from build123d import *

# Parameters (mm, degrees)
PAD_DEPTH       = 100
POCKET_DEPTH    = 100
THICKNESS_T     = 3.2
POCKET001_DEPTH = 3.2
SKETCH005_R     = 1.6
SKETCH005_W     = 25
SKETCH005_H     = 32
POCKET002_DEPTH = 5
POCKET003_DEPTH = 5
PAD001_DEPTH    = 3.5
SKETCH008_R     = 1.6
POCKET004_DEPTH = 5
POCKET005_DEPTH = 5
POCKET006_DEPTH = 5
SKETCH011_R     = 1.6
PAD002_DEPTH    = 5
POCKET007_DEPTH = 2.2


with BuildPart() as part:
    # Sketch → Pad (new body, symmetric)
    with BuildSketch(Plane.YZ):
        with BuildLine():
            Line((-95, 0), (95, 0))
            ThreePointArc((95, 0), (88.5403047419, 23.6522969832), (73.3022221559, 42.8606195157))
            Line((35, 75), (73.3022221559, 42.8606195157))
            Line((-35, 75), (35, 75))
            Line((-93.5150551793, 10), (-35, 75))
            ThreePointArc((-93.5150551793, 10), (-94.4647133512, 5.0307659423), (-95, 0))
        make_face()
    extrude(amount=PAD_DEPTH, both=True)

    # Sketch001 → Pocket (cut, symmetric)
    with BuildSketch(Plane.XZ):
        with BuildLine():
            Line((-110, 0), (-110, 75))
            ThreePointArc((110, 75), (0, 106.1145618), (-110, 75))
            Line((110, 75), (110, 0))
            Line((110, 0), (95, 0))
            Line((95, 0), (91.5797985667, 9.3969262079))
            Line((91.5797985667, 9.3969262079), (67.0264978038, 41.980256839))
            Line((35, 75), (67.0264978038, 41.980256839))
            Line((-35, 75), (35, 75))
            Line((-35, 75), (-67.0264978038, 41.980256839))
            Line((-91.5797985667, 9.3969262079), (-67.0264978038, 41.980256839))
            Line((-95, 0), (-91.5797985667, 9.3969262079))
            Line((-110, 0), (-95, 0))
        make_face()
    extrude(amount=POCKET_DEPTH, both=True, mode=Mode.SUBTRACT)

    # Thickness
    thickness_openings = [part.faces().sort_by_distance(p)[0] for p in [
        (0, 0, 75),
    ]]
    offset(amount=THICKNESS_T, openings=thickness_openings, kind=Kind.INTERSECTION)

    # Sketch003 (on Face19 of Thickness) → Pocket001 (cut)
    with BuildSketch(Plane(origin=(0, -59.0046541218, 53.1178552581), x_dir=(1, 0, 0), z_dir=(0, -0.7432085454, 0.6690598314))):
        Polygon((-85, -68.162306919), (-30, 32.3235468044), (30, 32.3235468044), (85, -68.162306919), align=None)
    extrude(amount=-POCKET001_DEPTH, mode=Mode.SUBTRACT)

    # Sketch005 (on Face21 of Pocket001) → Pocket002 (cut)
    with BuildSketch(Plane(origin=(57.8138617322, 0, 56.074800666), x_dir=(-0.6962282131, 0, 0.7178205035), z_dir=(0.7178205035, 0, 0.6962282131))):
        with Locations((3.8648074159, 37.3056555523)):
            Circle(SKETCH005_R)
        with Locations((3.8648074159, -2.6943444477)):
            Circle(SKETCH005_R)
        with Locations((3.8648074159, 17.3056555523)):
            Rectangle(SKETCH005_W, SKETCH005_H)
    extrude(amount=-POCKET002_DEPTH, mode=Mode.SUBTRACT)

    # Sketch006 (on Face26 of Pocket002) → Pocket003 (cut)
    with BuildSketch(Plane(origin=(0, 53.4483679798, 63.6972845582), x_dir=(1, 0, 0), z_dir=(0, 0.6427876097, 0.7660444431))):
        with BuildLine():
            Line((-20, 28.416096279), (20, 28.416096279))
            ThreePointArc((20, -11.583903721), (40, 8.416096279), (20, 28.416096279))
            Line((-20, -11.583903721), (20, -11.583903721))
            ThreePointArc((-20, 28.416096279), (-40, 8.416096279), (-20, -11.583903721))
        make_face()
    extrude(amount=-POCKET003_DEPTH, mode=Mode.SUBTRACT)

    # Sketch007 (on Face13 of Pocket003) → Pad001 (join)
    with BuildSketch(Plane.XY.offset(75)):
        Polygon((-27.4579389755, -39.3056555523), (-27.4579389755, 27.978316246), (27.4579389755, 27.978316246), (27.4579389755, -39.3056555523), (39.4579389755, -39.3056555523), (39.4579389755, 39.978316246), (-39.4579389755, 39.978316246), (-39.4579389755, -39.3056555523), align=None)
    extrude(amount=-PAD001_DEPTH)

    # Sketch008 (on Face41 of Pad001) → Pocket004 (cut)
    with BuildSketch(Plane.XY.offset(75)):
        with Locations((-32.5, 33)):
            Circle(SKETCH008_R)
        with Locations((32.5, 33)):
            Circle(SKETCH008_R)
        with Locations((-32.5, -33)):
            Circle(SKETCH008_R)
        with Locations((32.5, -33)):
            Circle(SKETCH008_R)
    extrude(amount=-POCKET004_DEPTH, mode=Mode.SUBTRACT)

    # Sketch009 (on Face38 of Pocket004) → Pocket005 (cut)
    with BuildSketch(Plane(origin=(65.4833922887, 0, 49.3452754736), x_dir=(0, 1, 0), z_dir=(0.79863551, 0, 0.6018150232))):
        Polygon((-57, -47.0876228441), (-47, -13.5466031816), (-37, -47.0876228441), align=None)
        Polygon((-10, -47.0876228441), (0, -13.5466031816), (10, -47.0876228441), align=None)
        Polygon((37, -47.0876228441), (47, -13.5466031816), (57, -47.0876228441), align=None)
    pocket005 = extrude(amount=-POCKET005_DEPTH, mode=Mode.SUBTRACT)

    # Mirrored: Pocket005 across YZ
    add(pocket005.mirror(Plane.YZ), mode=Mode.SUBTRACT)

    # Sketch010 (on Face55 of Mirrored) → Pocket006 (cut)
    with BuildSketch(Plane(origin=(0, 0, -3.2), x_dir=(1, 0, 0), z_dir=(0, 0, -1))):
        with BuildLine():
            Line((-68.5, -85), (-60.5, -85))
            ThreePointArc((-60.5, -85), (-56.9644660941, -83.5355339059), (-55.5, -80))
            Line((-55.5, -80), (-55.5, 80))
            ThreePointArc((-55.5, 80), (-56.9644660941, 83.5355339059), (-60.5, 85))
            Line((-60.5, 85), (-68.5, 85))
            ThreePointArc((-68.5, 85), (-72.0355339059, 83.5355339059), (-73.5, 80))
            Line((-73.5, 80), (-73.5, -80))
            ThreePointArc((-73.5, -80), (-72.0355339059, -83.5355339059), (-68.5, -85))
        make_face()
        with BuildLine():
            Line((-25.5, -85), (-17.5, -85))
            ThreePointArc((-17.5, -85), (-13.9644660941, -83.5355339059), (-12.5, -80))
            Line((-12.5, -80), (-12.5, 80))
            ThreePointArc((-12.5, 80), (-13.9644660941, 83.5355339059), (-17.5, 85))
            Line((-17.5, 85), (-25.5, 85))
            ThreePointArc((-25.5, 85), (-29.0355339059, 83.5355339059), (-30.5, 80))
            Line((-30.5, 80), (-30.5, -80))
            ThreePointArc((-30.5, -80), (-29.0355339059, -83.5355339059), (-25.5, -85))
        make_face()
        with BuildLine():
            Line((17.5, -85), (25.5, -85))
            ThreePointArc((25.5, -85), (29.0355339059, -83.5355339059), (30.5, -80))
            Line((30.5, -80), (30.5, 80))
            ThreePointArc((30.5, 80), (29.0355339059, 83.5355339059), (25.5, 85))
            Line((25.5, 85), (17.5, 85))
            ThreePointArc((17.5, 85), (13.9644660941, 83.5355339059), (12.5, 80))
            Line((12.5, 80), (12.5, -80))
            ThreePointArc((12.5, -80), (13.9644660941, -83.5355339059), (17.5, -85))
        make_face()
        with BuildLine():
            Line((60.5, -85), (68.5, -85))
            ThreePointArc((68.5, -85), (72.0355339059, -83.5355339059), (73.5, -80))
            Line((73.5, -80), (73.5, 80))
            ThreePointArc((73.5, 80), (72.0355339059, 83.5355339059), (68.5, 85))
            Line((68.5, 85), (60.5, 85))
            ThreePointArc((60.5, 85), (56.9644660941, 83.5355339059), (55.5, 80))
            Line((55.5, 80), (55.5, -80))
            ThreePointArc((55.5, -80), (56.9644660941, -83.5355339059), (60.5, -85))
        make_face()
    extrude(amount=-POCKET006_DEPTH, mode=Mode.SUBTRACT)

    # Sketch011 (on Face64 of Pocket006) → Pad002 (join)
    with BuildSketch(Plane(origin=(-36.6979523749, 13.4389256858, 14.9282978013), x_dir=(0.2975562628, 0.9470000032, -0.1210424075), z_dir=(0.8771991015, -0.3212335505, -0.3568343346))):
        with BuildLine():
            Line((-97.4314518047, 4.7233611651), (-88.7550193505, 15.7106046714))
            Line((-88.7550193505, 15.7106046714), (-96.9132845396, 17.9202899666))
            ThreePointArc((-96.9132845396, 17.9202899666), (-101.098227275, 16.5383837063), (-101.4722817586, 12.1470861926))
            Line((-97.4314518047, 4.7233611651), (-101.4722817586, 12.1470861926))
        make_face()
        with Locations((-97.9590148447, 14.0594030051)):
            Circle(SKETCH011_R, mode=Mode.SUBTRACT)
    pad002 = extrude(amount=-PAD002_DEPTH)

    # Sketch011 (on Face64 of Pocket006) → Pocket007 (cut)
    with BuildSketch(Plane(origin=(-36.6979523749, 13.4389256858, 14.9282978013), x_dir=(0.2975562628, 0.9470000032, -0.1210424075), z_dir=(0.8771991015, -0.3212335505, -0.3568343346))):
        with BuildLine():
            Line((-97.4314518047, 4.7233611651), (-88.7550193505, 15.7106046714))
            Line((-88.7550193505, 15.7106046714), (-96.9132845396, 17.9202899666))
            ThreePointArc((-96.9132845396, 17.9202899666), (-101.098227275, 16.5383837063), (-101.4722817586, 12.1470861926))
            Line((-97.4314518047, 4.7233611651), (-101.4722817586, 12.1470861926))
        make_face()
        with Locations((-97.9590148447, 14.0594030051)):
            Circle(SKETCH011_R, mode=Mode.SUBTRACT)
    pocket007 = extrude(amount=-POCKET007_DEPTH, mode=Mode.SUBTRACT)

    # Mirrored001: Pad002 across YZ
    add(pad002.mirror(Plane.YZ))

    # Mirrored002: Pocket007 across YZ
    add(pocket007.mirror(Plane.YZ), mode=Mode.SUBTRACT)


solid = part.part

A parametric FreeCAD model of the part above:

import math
import FreeCAD as App
import Part
import Sketcher

V = App.Vector
Q = App.Units.Quantity


def faces_at(feature, points):
    """Names of the faces that lie closest to the given points."""
    faces = feature.Shape.Faces
    near = lambda p: min(range(len(faces)), key=lambda i: faces[i].distToShape(Part.Vertex(*p))[0])
    return sorted({f"Face{near(p) + 1}" for p in points})


def add_polygon(sketch, points):
    """Adds a closed chain of lines whose ends are joined by coincident constraints."""
    first, n = sketch.GeometryCount, len(points)
    for a, b in zip(points, points[1:] + points[:1]):
        sketch.addGeometry(Part.LineSegment(App.Vector(*a, 0), App.Vector(*b, 0)), False)
    for i in range(n):
        sketch.addConstraint(Sketcher.Constraint("Coincident", first + i, 2, first + (i + 1) % n, 1))

doc = App.newDocument("Part")
params = doc.addObject("Spreadsheet::Sheet", "Params")
for row, (alias, value) in enumerate([
    ("sketch1_width", "190 mm"),
    ("sketch1_width2", "70 mm"),
    ("sketch1_length", "50 mm"),
    ("pad1_length", "200 mm"),
    ("sketch2_radius", "210 mm"),
    ("sketch2_width", "15 mm"),
    ("sketch2_width2", "70 mm"),
    ("sketch2_height", "75 mm"),
    ("sketch2_length", "10 mm"),
    ("pocket1_length", "200 mm"),
    ("thickness_wall", "3.2 mm"),
    ("sketch3_width", "170 mm"),
    ("sketch3_width2", "60 mm"),
    ("pocket2_length", "3.2 mm"),
    ("sketch4_diameter", "3.2 mm"),
    ("sketch4_width", "25 mm"),
    ("sketch4_height", "32 mm"),
    ("pocket3_length", "5 mm"),
    ("sketch5_radius", "20 mm"),
    ("sketch5_width", "40 mm"),
    ("pocket4_length", "5 mm"),
    ("sketch6_width", "12 mm"),
    ("pad2_length", "3.5 mm"),
    ("sketch7_diameter", "3.2 mm"),
    ("pocket5_length", "5 mm"),
    ("sketch8_width", "20 mm"),
    ("sketch8_length", "35 mm"),
    ("pocket6_length", "5 mm"),
    ("sketch9_radius", "5 mm"),
    ("sketch9_width", "8 mm"),
    ("sketch9_height", "160 mm"),
    ("pocket7_length", "5 mm"),
    ("sketch10_radius", "4 mm"),
    ("sketch10_diameter", "3.2 mm"),
    ("sketch10_length", "14 mm"),
    ("pad3_length", "5 mm"),
    ("sketch11_radius", "4 mm"),
    ("sketch11_diameter", "3.2 mm"),
    ("sketch11_length", "14 mm"),
    ("pocket8_length", "2.2 mm"),
], start=1):
    params.set(f"A{row}", alias)
    params.set(f"B{row}", "=" + value)
    params.setAlias(f"B{row}", alias)

body = doc.addObject("PartDesign::Body", "Body")

# Sketch on YZ plane
sketch1 = body.newObject("Sketcher::SketchObject", "Sketch")
sketch1.AttachmentSupport = (doc.getObject("YZ_Plane"), [""])
sketch1.MapMode = "FlatFace"
sketch1.addGeometry(Part.LineSegment(V(-95, 0, 0), V(95, 0, 0)), False)
sketch1.addGeometry(Part.ArcOfCircle(Part.Circle(V(34, -4, 0), V(0, 0, 1), 61), math.radians(4), math.radians(50)), False)
sketch1.addGeometry(Part.LineSegment(V(73, 43, 0), V(35, 75, 0)), False)
sketch1.addGeometry(Part.LineSegment(V(35, 75, 0), V(-35, 75, 0)), False)
sketch1.addGeometry(Part.LineSegment(V(-35, 75, 0), V(-94, 10, 0)), False)
sketch1.addGeometry(Part.ArcOfCircle(Part.Circle(V(-34, -4, 0), V(0, 0, 1), 61), math.radians(166.81), math.radians(176.3)), False)
sketch1.addConstraint(Sketcher.Constraint("Coincident", 0, 2, 1, 1))
sketch1.addConstraint(Sketcher.Constraint("Tangent", 1, 2, 2, 1))
sketch1.addConstraint(Sketcher.Constraint("Coincident", 2, 2, 3, 1))
sketch1.addConstraint(Sketcher.Constraint("Coincident", 3, 2, 4, 1))
sketch1.addConstraint(Sketcher.Constraint("Coincident", 4, 2, 5, 1))
sketch1.addConstraint(Sketcher.Constraint("Coincident", 5, 2, 0, 1))
sketch1.addConstraint(Sketcher.Constraint("Horizontal", 0))
sketch1.addConstraint(Sketcher.Constraint("Horizontal", 3))
sketch1.addConstraint(Sketcher.Constraint("Equal", 1, 5))
sketch1.addConstraint(Sketcher.Constraint("Symmetric", 0, 2, 5, 2, -1, 1))
sketch1.addConstraint(Sketcher.Constraint("Horizontal", 1, 3, 5, 3))
sketch1.addConstraint(Sketcher.Constraint("DistanceX", 0, 1, 0, 2, Q("190 mm")))
sketch1.addConstraint(Sketcher.Constraint("DistanceX", 3, 2, 3, 1, Q("70 mm")))
sketch1.addConstraint(Sketcher.Constraint("Angle", 2, Q("140 deg")))
sketch1.addConstraint(Sketcher.Constraint("Distance", 2, Q("50 mm")))
sketch1.addConstraint(Sketcher.Constraint("DistanceX", -1, 1, 2, 2, Q("35 mm")))
sketch1.addConstraint(Sketcher.Constraint("DistanceY", -1, 1, 2, 2, Q("75 mm")))
sketch1.addConstraint(Sketcher.Constraint("DistanceY", -1, 1, 4, 2, Q("10 mm")))
sketch1.setExpression("Constraints[11]", "Params.sketch1_width")
sketch1.setExpression("Constraints[12]", "Params.sketch1_width2")
sketch1.setExpression("Constraints[14]", "Params.sketch1_length")
pad1 = body.newObject("PartDesign::Pad", "Pad")
pad1.Profile = sketch1
pad1.setExpression("Length", "Params.pad1_length")
pad1.Midplane = True

# Sketch on XZ plane
sketch2 = body.newObject("Sketcher::SketchObject", "Sketch001")
sketch2.AttachmentSupport = (doc.getObject("XZ_Plane"), [""])
sketch2.MapMode = "FlatFace"
sketch2.addGeometry(Part.LineSegment(V(-110, 75, 0), V(-110, 0, 0)), False)
sketch2.addGeometry(Part.LineSegment(V(-110, 0, 0), V(-95, 0, 0)), False)
sketch2.addGeometry(Part.LineSegment(V(-95, 0, 0), V(-92, 9, 0)), False)
sketch2.addGeometry(Part.LineSegment(V(-92, 9, 0), V(-67, 42, 0)), False)
sketch2.addGeometry(Part.LineSegment(V(-67, 42, 0), V(-35, 75, 0)), False)
sketch2.addGeometry(Part.LineSegment(V(-35, 75, 0), V(35, 75, 0)), False)
sketch2.addGeometry(Part.LineSegment(V(35, 75, 0), V(67, 42, 0)), False)
sketch2.addGeometry(Part.LineSegment(V(67, 42, 0), V(92, 9, 0)), False)
sketch2.addGeometry(Part.LineSegment(V(92, 9, 0), V(95, 0, 0)), False)
sketch2.addGeometry(Part.LineSegment(V(95, 0, 0), V(110, 0, 0)), False)
sketch2.addGeometry(Part.LineSegment(V(110, 0, 0), V(110, 75, 0)), False)
sketch2.addGeometry(Part.ArcOfCircle(Part.Circle(V(0, -104, 0), V(0, 0, 1), 210), math.radians(58), math.radians(122)), False)
sketch2.addConstraint(Sketcher.Constraint("Coincident", 0, 2, 1, 1))
sketch2.addConstraint(Sketcher.Constraint("Coincident", 1, 2, 2, 1))
sketch2.addConstraint(Sketcher.Constraint("Coincident", 2, 2, 3, 1))
sketch2.addConstraint(Sketcher.Constraint("Coincident", 3, 2, 4, 1))
sketch2.addConstraint(Sketcher.Constraint("Coincident", 4, 2, 5, 1))
sketch2.addConstraint(Sketcher.Constraint("Coincident", 5, 2, 6, 1))
sketch2.addConstraint(Sketcher.Constraint("Coincident", 6, 2, 7, 1))
sketch2.addConstraint(Sketcher.Constraint("Coincident", 7, 2, 8, 1))
sketch2.addConstraint(Sketcher.Constraint("Coincident", 8, 2, 9, 1))
sketch2.addConstraint(Sketcher.Constraint("Coincident", 9, 2, 10, 1))
sketch2.addConstraint(Sketcher.Constraint("Coincident", 10, 2, 11, 1))
sketch2.addConstraint(Sketcher.Constraint("Coincident", 11, 2, 0, 1))
sketch2.addConstraint(Sketcher.Constraint("Vertical", 0))
sketch2.addConstraint(Sketcher.Constraint("Horizontal", 1))
sketch2.addConstraint(Sketcher.Constraint("Horizontal", 5))
sketch2.addConstraint(Sketcher.Constraint("Horizontal", 9))
sketch2.addConstraint(Sketcher.Constraint("Vertical", 10))
sketch2.addConstraint(Sketcher.Constraint("Symmetric", 1, 2, 8, 2, -1, 1))
sketch2.addConstraint(Sketcher.Constraint("Symmetric", 3, 2, 6, 2, -2))
sketch2.addConstraint(Sketcher.Constraint("Symmetric", 2, 2, 7, 2, -2))
sketch2.addConstraint(Sketcher.Constraint("Symmetric", 0, 2, 9, 2, -2))
sketch2.addConstraint(Sketcher.Constraint("PointOnObject", 11, 3, -2))
sketch2.addConstraint(Sketcher.Constraint("Horizontal", 5, 2, 10, 2))
sketch2.addConstraint(Sketcher.Constraint("Equal", 4, 6))
sketch2.addConstraint(Sketcher.Constraint("Radius", 11, Q("210 mm")))
sketch2.addConstraint(Sketcher.Constraint("DistanceX", 1, 1, 1, 2, Q("15 mm")))
sketch2.addConstraint(Sketcher.Constraint("DistanceX", 5, 1, 5, 2, Q("70 mm")))
sketch2.addConstraint(Sketcher.Constraint("DistanceY", 0, 2, 0, 1, Q("75 mm")))
sketch2.addConstraint(Sketcher.Constraint("Angle", 2, Q("70 deg")))
sketch2.addConstraint(Sketcher.Constraint("Angle", 3, Q("53 deg")))
sketch2.addConstraint(Sketcher.Constraint("Distance", 2, Q("10 mm")))
sketch2.addConstraint(Sketcher.Constraint("Distance", 4, Q("46 mm")))
sketch2.addConstraint(Sketcher.Constraint("DistanceX", 0, 2, -1, 1, Q("110 mm")))
sketch2.setExpression("Constraints[24]", "Params.sketch2_radius")
sketch2.setExpression("Constraints[25]", "Params.sketch2_width")
sketch2.setExpression("Constraints[26]", "Params.sketch2_width2")
sketch2.setExpression("Constraints[27]", "Params.sketch2_height")
sketch2.setExpression("Constraints[30]", "Params.sketch2_length")
pocket1 = body.newObject("PartDesign::Pocket", "Pocket")
pocket1.Profile = sketch2
pocket1.setExpression("Length", "Params.pocket1_length")
pocket1.Midplane = True
doc.recompute()

thickness = body.newObject("PartDesign::Thickness", "Thickness")
thickness.Base = (pocket1, faces_at(pocket1, [(0, 0, 75)]))
thickness.setExpression("Value", "Params.thickness_wall")
thickness.Reversed = False
thickness.Join = "Intersection"

# Sketch on an angled plane
sketch3 = body.newObject("Sketcher::SketchObject", "Sketch002")
sketch3.Placement = App.Placement(V(0, -59.004654, 53.117855), App.Rotation(V(1, 0, 0), V(0, 0.669059831, 0.743208545), V(0, -0.743208545, 0.669059831), "ZXY"))
add_polygon(sketch3, [(-30, 32), (-85, -68), (85, -68), (30, 32)])  # lines 0-3
sketch3.addConstraint(Sketcher.Constraint("Horizontal", 1))
sketch3.addConstraint(Sketcher.Constraint("Horizontal", 3))
sketch3.addConstraint(Sketcher.Constraint("Equal", 0, 2))
sketch3.addConstraint(Sketcher.Constraint("DistanceX", 1, 1, 1, 2, Q("170 mm")))
sketch3.addConstraint(Sketcher.Constraint("DistanceX", 3, 2, 3, 1, Q("60 mm")))
sketch3.addConstraint(Sketcher.Constraint("DistanceX", 0, 2, -1, 1, Q("85 mm")))
sketch3.addConstraint(Sketcher.Constraint("Distance", 0, Q("114.553074 mm")))
sketch3.addConstraint(Sketcher.Constraint("DistanceY", 0, 2, -1, 1, Q("68.162307 mm")))
sketch3.setExpression("Constraints[7]", "Params.sketch3_width")
sketch3.setExpression("Constraints[8]", "Params.sketch3_width2")
pocket2 = body.newObject("PartDesign::Pocket", "Pocket001")
pocket2.Profile = sketch3
pocket2.setExpression("Length", "Params.pocket2_length")

# Sketch on an angled plane
sketch4 = body.newObject("Sketcher::SketchObject", "Sketch003")
sketch4.Placement = App.Placement(V(57.813862, 0, 56.074801), App.Rotation(V(-0.696228213, 0, 0.717820504), V(0, -1.000000001, 0), V(0.717820504, 0, 0.696228213), "ZXY"))
sketch4.addGeometry(Part.Circle(V(3.9, 37.3, 0), V(0, 0, 1), 1.6), False)  # 0
sketch4.addGeometry(Part.Circle(V(3.9, -2.7, 0), V(0, 0, 1), 1.6), False)  # 1
add_polygon(sketch4, [(-8.6, 33.3), (-8.6, 1.3), (16.4, 1.3), (16.4, 33.3)])  # lines 2-5
sketch4.addConstraint(Sketcher.Constraint("Vertical", 2))
sketch4.addConstraint(Sketcher.Constraint("Horizontal", 3))
sketch4.addConstraint(Sketcher.Constraint("Vertical", 4))
sketch4.addConstraint(Sketcher.Constraint("Horizontal", 5))
sketch4.addConstraint(Sketcher.Constraint("Equal", 0, 1))
sketch4.addConstraint(Sketcher.Constraint("Vertical", 0, 3, 1, 3))
sketch4.addConstraint(Sketcher.Constraint("Diameter", 0, Q("3.2 mm")))
sketch4.addConstraint(Sketcher.Constraint("DistanceX", 3, 1, 3, 2, Q("25 mm")))
sketch4.addConstraint(Sketcher.Constraint("DistanceY", 2, 2, 2, 1, Q("32 mm")))
sketch4.addConstraint(Sketcher.Constraint("DistanceY", 1, 3, 0, 3, Q("40 mm")))
sketch4.addConstraint(Sketcher.Constraint("DistanceY", 1, 3, 2, 2, Q("4 mm")))
sketch4.addConstraint(Sketcher.Constraint("DistanceX", 2, 2, 1, 3, Q("12.5 mm")))
sketch4.addConstraint(Sketcher.Constraint("DistanceX", -1, 1, 0, 3, Q("3.864807 mm")))
sketch4.addConstraint(Sketcher.Constraint("DistanceY", -1, 1, 0, 3, Q("37.305656 mm")))
sketch4.setExpression("Constraints[10]", "Params.sketch4_diameter")
sketch4.setExpression("Constraints[11]", "Params.sketch4_width")
sketch4.setExpression("Constraints[12]", "Params.sketch4_height")
pocket3 = body.newObject("PartDesign::Pocket", "Pocket002")
pocket3.Profile = sketch4
pocket3.setExpression("Length", "Params.pocket3_length")

# Sketch on an angled plane
sketch5 = body.newObject("Sketcher::SketchObject", "Sketch004")
sketch5.Placement = App.Placement(V(0, 53.448368, 63.697285), App.Rotation(V(1, 0, 0), V(0, 0.766044443, -0.64278761), V(0, 0.64278761, 0.766044443), "ZXY"))
sketch5.addGeometry(Part.LineSegment(V(20, 28, 0), V(-20, 28, 0)), False)
sketch5.addGeometry(Part.ArcOfCircle(Part.Circle(V(-20, 8, 0), V(0, 0, 1), 20), math.radians(90), math.radians(270)), False)
sketch5.addGeometry(Part.LineSegment(V(-20, -12, 0), V(20, -12, 0)), False)
sketch5.addGeometry(Part.ArcOfCircle(Part.Circle(V(20, 8, 0), V(0, 0, 1), 20), math.radians(-90), math.radians(90)), False)
sketch5.addConstraint(Sketcher.Constraint("Tangent", 0, 2, 1, 1))
sketch5.addConstraint(Sketcher.Constraint("Tangent", 1, 2, 2, 1))
sketch5.addConstraint(Sketcher.Constraint("Tangent", 2, 2, 3, 1))
sketch5.addConstraint(Sketcher.Constraint("Tangent", 3, 2, 0, 1))
sketch5.addConstraint(Sketcher.Constraint("Horizontal", 0))
sketch5.addConstraint(Sketcher.Constraint("Horizontal", 2))
sketch5.addConstraint(Sketcher.Constraint("Radius", 1, Q("20 mm")))
sketch5.addConstraint(Sketcher.Constraint("DistanceX", 0, 2, 0, 1, Q("40 mm")))
sketch5.addConstraint(Sketcher.Constraint("DistanceX", 1, 3, -1, 1, Q("20 mm")))
sketch5.addConstraint(Sketcher.Constraint("DistanceY", -1, 1, 1, 3, Q("8.416096 mm")))
sketch5.setExpression("Constraints[6]", "Params.sketch5_radius")
sketch5.setExpression("Constraints[7]", "Params.sketch5_width")
pocket4 = body.newObject("PartDesign::Pocket", "Pocket003")
pocket4.Profile = sketch5
pocket4.setExpression("Length", "Params.pocket4_length")

# Sketch on XY plane
sketch6 = body.newObject("Sketcher::SketchObject", "Sketch005")
sketch6.AttachmentSupport = (doc.getObject("XY_Plane"), [""])
sketch6.MapMode = "FlatFace"
sketch6.AttachmentOffset = App.Placement(V(0, 0, 75), App.Rotation())
add_polygon(sketch6, [(-27, -39), (-27, 28), (27, 28), (27, -39), (39, -39), (39, 40), (-39, 40), (-39, -39)])  # lines 0-7
sketch6.addConstraint(Sketcher.Constraint("Vertical", 0))
sketch6.addConstraint(Sketcher.Constraint("Horizontal", 1))
sketch6.addConstraint(Sketcher.Constraint("Vertical", 2))
sketch6.addConstraint(Sketcher.Constraint("Horizontal", 3))
sketch6.addConstraint(Sketcher.Constraint("Vertical", 4))
sketch6.addConstraint(Sketcher.Constraint("Horizontal", 5))
sketch6.addConstraint(Sketcher.Constraint("Vertical", 6))
sketch6.addConstraint(Sketcher.Constraint("Horizontal", 7))
sketch6.addConstraint(Sketcher.Constraint("Symmetric", 3, 2, 6, 2, -2))
sketch6.addConstraint(Sketcher.Constraint("Equal", 3, 7))
sketch6.addConstraint(Sketcher.Constraint("DistanceX", 3, 1, 3, 2, Q("12 mm")))
sketch6.addConstraint(Sketcher.Constraint("DistanceY", 1, 2, 4, 2, Q("12 mm")))
sketch6.addConstraint(Sketcher.Constraint("DistanceY", 0, 1, 0, 2, Q("67.283972 mm")))
sketch6.addConstraint(Sketcher.Constraint("DistanceX", 1, 1, 1, 2, Q("54.915878 mm")))
sketch6.addConstraint(Sketcher.Constraint("DistanceY", -1, 1, 0, 2, Q("27.978316 mm")))
sketch6.setExpression("Constraints[18]", "Params.sketch6_width")
pad2 = body.newObject("PartDesign::Pad", "Pad001")
pad2.Profile = sketch6
pad2.setExpression("Length", "Params.pad2_length")
pad2.Reversed = True

# Sketch on XY plane
sketch7 = body.newObject("Sketcher::SketchObject", "Sketch006")
sketch7.AttachmentSupport = (doc.getObject("XY_Plane"), [""])
sketch7.MapMode = "FlatFace"
sketch7.AttachmentOffset = App.Placement(V(0, 0, 75), App.Rotation())
sketch7.addGeometry(Part.Circle(V(-32.5, 33, 0), V(0, 0, 1), 1.6), False)
sketch7.addGeometry(Part.Circle(V(32.5, 33, 0), V(0, 0, 1), 1.6), False)
sketch7.addGeometry(Part.Circle(V(-32.5, -33, 0), V(0, 0, 1), 1.6), False)
sketch7.addGeometry(Part.Circle(V(32.5, -33, 0), V(0, 0, 1), 1.6), False)
sketch7.addConstraint(Sketcher.Constraint("Equal", 0, 1))
sketch7.addConstraint(Sketcher.Constraint("Equal", 1, 2))
sketch7.addConstraint(Sketcher.Constraint("Equal", 2, 3))
sketch7.addConstraint(Sketcher.Constraint("Symmetric", 1, 3, 2, 3, -1, 1))
sketch7.addConstraint(Sketcher.Constraint("Symmetric", 0, 3, 3, 3, -1, 1))
sketch7.addConstraint(Sketcher.Constraint("Symmetric", 0, 3, 1, 3, -2))
sketch7.addConstraint(Sketcher.Constraint("Diameter", 0, Q("3.2 mm")))
sketch7.addConstraint(Sketcher.Constraint("DistanceY", -1, 1, 0, 3, Q("33 mm")))
sketch7.addConstraint(Sketcher.Constraint("DistanceX", 0, 3, 1, 3, Q("65 mm")))
sketch7.setExpression("Constraints[6]", "Params.sketch7_diameter")
pocket5 = body.newObject("PartDesign::Pocket", "Pocket004")
pocket5.Profile = sketch7
pocket5.setExpression("Length", "Params.pocket5_length")

# Sketch on an angled plane
sketch8 = body.newObject("Sketcher::SketchObject", "Sketch007")
sketch8.Placement = App.Placement(V(65.483392, 0, 49.345275), App.Rotation(V(0, 1, 0), V(-0.601815023, 0, 0.79863551), V(0.79863551, 0, 0.601815023), "ZXY"))
add_polygon(sketch8, [(-47, -14), (-57, -47), (-37, -47)])  # lines 0-2
add_polygon(sketch8, [(0, -14), (-10, -47), (10, -47)])  # lines 3-5
add_polygon(sketch8, [(47, -14), (37, -47), (57, -47)])  # lines 6-8
sketch8.addConstraint(Sketcher.Constraint("Horizontal", 1))
sketch8.addConstraint(Sketcher.Constraint("Horizontal", 4))
sketch8.addConstraint(Sketcher.Constraint("Horizontal", 7))
sketch8.addConstraint(Sketcher.Constraint("Symmetric", 1, 2, 6, 2, -2))
sketch8.addConstraint(Sketcher.Constraint("Symmetric", 2, 2, 8, 2, -2))
sketch8.addConstraint(Sketcher.Constraint("PointOnObject", 5, 2, -2))
sketch8.addConstraint(Sketcher.Constraint("Parallel", 0, 3))
sketch8.addConstraint(Sketcher.Constraint("Parallel", 2, 5))
sketch8.addConstraint(Sketcher.Constraint("Parallel", 3, 6))
sketch8.addConstraint(Sketcher.Constraint("Parallel", 5, 8))
sketch8.addConstraint(Sketcher.Constraint("Horizontal", 1, 2, 3, 2))
sketch8.addConstraint(Sketcher.Constraint("Horizontal", 2, 2, 5, 2))
sketch8.addConstraint(Sketcher.Constraint("DistanceX", 1, 1, 1, 2, Q("20 mm")))
sketch8.addConstraint(Sketcher.Constraint("Distance", 0, Q("35 mm")))
sketch8.addConstraint(Sketcher.Constraint("DistanceX", 0, 2, -1, 1, Q("57 mm")))
sketch8.addConstraint(Sketcher.Constraint("DistanceY", 0, 2, -1, 1, Q("47.087623 mm")))
sketch8.setExpression("Constraints[21]", "Params.sketch8_width")
sketch8.setExpression("Constraints[22]", "Params.sketch8_length")
pocket6 = body.newObject("PartDesign::Pocket", "Pocket005")
pocket6.Profile = sketch8
pocket6.setExpression("Length", "Params.pocket6_length")
doc.recompute()

mirrored = body.newObject("PartDesign::Mirrored", "Mirrored")
mirrored.Originals = [pocket6]
mirrored.MirrorPlane = (doc.getObject("YZ_Plane"), [""])
body.Tip = mirrored

# Sketch on XY plane
sketch9 = body.newObject("Sketcher::SketchObject", "Sketch008")
sketch9.AttachmentSupport = (doc.getObject("XY_Plane"), [""])
sketch9.MapMode = "FlatFace"
sketch9.AttachmentOffset = App.Placement(V(0, 0, -3.2), App.Rotation())
sketch9.addGeometry(Part.LineSegment(V(-68, 85, 0), V(-60, 85, 0)), False)
sketch9.addGeometry(Part.ArcOfCircle(Part.Circle(V(-60, 80, 0), V(0, 0, 1), 5), math.radians(0), math.radians(90)), False)
sketch9.addGeometry(Part.LineSegment(V(-56, 80, 0), V(-56, -80, 0)), False)
sketch9.addGeometry(Part.ArcOfCircle(Part.Circle(V(-60, -80, 0), V(0, 0, 1), 5), math.radians(-90), math.radians(0)), False)
sketch9.addGeometry(Part.LineSegment(V(-60, -85, 0), V(-68, -85, 0)), False)
sketch9.addGeometry(Part.ArcOfCircle(Part.Circle(V(-68, -80, 0), V(0, 0, 1), 5), math.radians(180), math.radians(270)), False)
sketch9.addGeometry(Part.LineSegment(V(-74, -80, 0), V(-74, 80, 0)), False)
sketch9.addGeometry(Part.ArcOfCircle(Part.Circle(V(-68, 80, 0), V(0, 0, 1), 5), math.radians(90), math.radians(180)), False)
sketch9.addGeometry(Part.LineSegment(V(-26, 85, 0), V(-18, 85, 0)), False)
sketch9.addGeometry(Part.ArcOfCircle(Part.Circle(V(-18, 80, 0), V(0, 0, 1), 5), math.radians(0), math.radians(90)), False)
sketch9.addGeometry(Part.LineSegment(V(-12, 80, 0), V(-12, -80, 0)), False)
sketch9.addGeometry(Part.ArcOfCircle(Part.Circle(V(-18, -80, 0), V(0, 0, 1), 5), math.radians(-90), math.radians(0)), False)
sketch9.addGeometry(Part.LineSegment(V(-18, -85, 0), V(-26, -85, 0)), False)
sketch9.addGeometry(Part.ArcOfCircle(Part.Circle(V(-26, -80, 0), V(0, 0, 1), 5), math.radians(180), math.radians(270)), False)
sketch9.addGeometry(Part.LineSegment(V(-30, -80, 0), V(-30, 80, 0)), False)
sketch9.addGeometry(Part.ArcOfCircle(Part.Circle(V(-26, 80, 0), V(0, 0, 1), 5), math.radians(90), math.radians(180)), False)
sketch9.addGeometry(Part.LineSegment(V(18, 85, 0), V(26, 85, 0)), False)
sketch9.addGeometry(Part.ArcOfCircle(Part.Circle(V(26, 80, 0), V(0, 0, 1), 5), math.radians(0), math.radians(90)), False)
sketch9.addGeometry(Part.LineSegment(V(30, 80, 0), V(30, -80, 0)), False)
sketch9.addGeometry(Part.ArcOfCircle(Part.Circle(V(26, -80, 0), V(0, 0, 1), 5), math.radians(-90), math.radians(0)), False)
sketch9.addGeometry(Part.LineSegment(V(26, -85, 0), V(18, -85, 0)), False)
sketch9.addGeometry(Part.ArcOfCircle(Part.Circle(V(18, -80, 0), V(0, 0, 1), 5), math.radians(180), math.radians(270)), False)
sketch9.addGeometry(Part.LineSegment(V(12, -80, 0), V(12, 80, 0)), False)
sketch9.addGeometry(Part.ArcOfCircle(Part.Circle(V(18, 80, 0), V(0, 0, 1), 5), math.radians(90), math.radians(180)), False)
sketch9.addGeometry(Part.LineSegment(V(60, 85, 0), V(68, 85, 0)), False)
sketch9.addGeometry(Part.ArcOfCircle(Part.Circle(V(68, 80, 0), V(0, 0, 1), 5), math.radians(0), math.radians(90)), False)
sketch9.addGeometry(Part.LineSegment(V(74, 80, 0), V(74, -80, 0)), False)
sketch9.addGeometry(Part.ArcOfCircle(Part.Circle(V(68, -80, 0), V(0, 0, 1), 5), math.radians(-90), math.radians(0)), False)
sketch9.addGeometry(Part.LineSegment(V(68, -85, 0), V(60, -85, 0)), False)
sketch9.addGeometry(Part.ArcOfCircle(Part.Circle(V(60, -80, 0), V(0, 0, 1), 5), math.radians(180), math.radians(270)), False)
sketch9.addGeometry(Part.LineSegment(V(56, -80, 0), V(56, 80, 0)), False)
sketch9.addGeometry(Part.ArcOfCircle(Part.Circle(V(60, 80, 0), V(0, 0, 1), 5), math.radians(90), math.radians(180)), False)
sketch9.addConstraint(Sketcher.Constraint("Tangent", 0, 2, 1, 2))
sketch9.addConstraint(Sketcher.Constraint("Tangent", 1, 1, 2, 1))
sketch9.addConstraint(Sketcher.Constraint("Tangent", 2, 2, 3, 2))
sketch9.addConstraint(Sketcher.Constraint("Tangent", 3, 1, 4, 1))
sketch9.addConstraint(Sketcher.Constraint("Tangent", 4, 2, 5, 2))
sketch9.addConstraint(Sketcher.Constraint("Tangent", 5, 1, 6, 1))
sketch9.addConstraint(Sketcher.Constraint("Tangent", 6, 2, 7, 2))
sketch9.addConstraint(Sketcher.Constraint("Tangent", 7, 1, 0, 1))
sketch9.addConstraint(Sketcher.Constraint("Tangent", 8, 2, 9, 2))
sketch9.addConstraint(Sketcher.Constraint("Tangent", 9, 1, 10, 1))
sketch9.addConstraint(Sketcher.Constraint("Tangent", 10, 2, 11, 2))
sketch9.addConstraint(Sketcher.Constraint("Tangent", 11, 1, 12, 1))
sketch9.addConstraint(Sketcher.Constraint("Tangent", 12, 2, 13, 2))
sketch9.addConstraint(Sketcher.Constraint("Tangent", 13, 1, 14, 1))
sketch9.addConstraint(Sketcher.Constraint("Tangent", 14, 2, 15, 2))
sketch9.addConstraint(Sketcher.Constraint("Tangent", 15, 1, 8, 1))
sketch9.addConstraint(Sketcher.Constraint("Tangent", 16, 2, 17, 2))
sketch9.addConstraint(Sketcher.Constraint("Tangent", 17, 1, 18, 1))
sketch9.addConstraint(Sketcher.Constraint("Tangent", 18, 2, 19, 2))
sketch9.addConstraint(Sketcher.Constraint("Tangent", 19, 1, 20, 1))
sketch9.addConstraint(Sketcher.Constraint("Tangent", 20, 2, 21, 2))
sketch9.addConstraint(Sketcher.Constraint("Tangent", 21, 1, 22, 1))
sketch9.addConstraint(Sketcher.Constraint("Tangent", 22, 2, 23, 2))
sketch9.addConstraint(Sketcher.Constraint("Tangent", 23, 1, 16, 1))
sketch9.addConstraint(Sketcher.Constraint("Tangent", 24, 2, 25, 2))
sketch9.addConstraint(Sketcher.Constraint("Tangent", 25, 1, 26, 1))
sketch9.addConstraint(Sketcher.Constraint("Tangent", 26, 2, 27, 2))
sketch9.addConstraint(Sketcher.Constraint("Tangent", 27, 1, 28, 1))
sketch9.addConstraint(Sketcher.Constraint("Tangent", 28, 2, 29, 2))
sketch9.addConstraint(Sketcher.Constraint("Tangent", 29, 1, 30, 1))
sketch9.addConstraint(Sketcher.Constraint("Tangent", 30, 2, 31, 2))
sketch9.addConstraint(Sketcher.Constraint("Tangent", 31, 1, 24, 1))
sketch9.addConstraint(Sketcher.Constraint("Horizontal", 0))
sketch9.addConstraint(Sketcher.Constraint("Vertical", 2))
sketch9.addConstraint(Sketcher.Constraint("Horizontal", 4))
sketch9.addConstraint(Sketcher.Constraint("Vertical", 6))
sketch9.addConstraint(Sketcher.Constraint("Horizontal", 8))
sketch9.addConstraint(Sketcher.Constraint("Vertical", 10))
sketch9.addConstraint(Sketcher.Constraint("Horizontal", 12))
sketch9.addConstraint(Sketcher.Constraint("Vertical", 14))
sketch9.addConstraint(Sketcher.Constraint("Horizontal", 16))
sketch9.addConstraint(Sketcher.Constraint("Vertical", 18))
sketch9.addConstraint(Sketcher.Constraint("Horizontal", 20))
sketch9.addConstraint(Sketcher.Constraint("Vertical", 22))
sketch9.addConstraint(Sketcher.Constraint("Horizontal", 24))
sketch9.addConstraint(Sketcher.Constraint("Vertical", 26))
sketch9.addConstraint(Sketcher.Constraint("Horizontal", 28))
sketch9.addConstraint(Sketcher.Constraint("Vertical", 30))
sketch9.addConstraint(Sketcher.Constraint("Equal", 1, 3))
sketch9.addConstraint(Sketcher.Constraint("Equal", 3, 5))
sketch9.addConstraint(Sketcher.Constraint("Equal", 5, 7))
sketch9.addConstraint(Sketcher.Constraint("Equal", 7, 9))
sketch9.addConstraint(Sketcher.Constraint("Equal", 9, 11))
sketch9.addConstraint(Sketcher.Constraint("Equal", 11, 13))
sketch9.addConstraint(Sketcher.Constraint("Equal", 13, 15))
sketch9.addConstraint(Sketcher.Constraint("Equal", 15, 17))
sketch9.addConstraint(Sketcher.Constraint("Equal", 17, 19))
sketch9.addConstraint(Sketcher.Constraint("Equal", 19, 21))
sketch9.addConstraint(Sketcher.Constraint("Equal", 21, 23))
sketch9.addConstraint(Sketcher.Constraint("Equal", 23, 25))
sketch9.addConstraint(Sketcher.Constraint("Equal", 25, 27))
sketch9.addConstraint(Sketcher.Constraint("Equal", 27, 29))
sketch9.addConstraint(Sketcher.Constraint("Equal", 29, 31))
sketch9.addConstraint(Sketcher.Constraint("Symmetric", 13, 3, 17, 3, -1, 1))
sketch9.addConstraint(Sketcher.Constraint("Symmetric", 9, 3, 21, 3, -1, 1))
sketch9.addConstraint(Sketcher.Constraint("Symmetric", 5, 3, 25, 3, -1, 1))
sketch9.addConstraint(Sketcher.Constraint("Symmetric", 1, 3, 29, 3, -1, 1))
sketch9.addConstraint(Sketcher.Constraint("Horizontal", 7, 3, 9, 3))
sketch9.addConstraint(Sketcher.Constraint("Horizontal", 5, 3, 11, 3))
sketch9.addConstraint(Sketcher.Constraint("Horizontal", 15, 3, 17, 3))
sketch9.addConstraint(Sketcher.Constraint("Equal", 4, 8))
sketch9.addConstraint(Sketcher.Constraint("Radius", 1, Q("5 mm")))
sketch9.addConstraint(Sketcher.Constraint("DistanceX", 0, 1, 0, 2, Q("8 mm")))
sketch9.addConstraint(Sketcher.Constraint("DistanceY", 2, 2, 2, 1, Q("160 mm")))
sketch9.addConstraint(Sketcher.Constraint("DistanceX", 1, 3, 9, 3, Q("43 mm")))
sketch9.addConstraint(Sketcher.Constraint("DistanceX", 9, 3, 17, 3, Q("43 mm")))
sketch9.setExpression("Constraints[71]", "Params.sketch9_radius")
sketch9.setExpression("Constraints[72]", "Params.sketch9_width")
sketch9.setExpression("Constraints[73]", "Params.sketch9_height")
pocket7 = body.newObject("PartDesign::Pocket", "Pocket006")
pocket7.Profile = sketch9
pocket7.setExpression("Length", "Params.pocket7_length")
pocket7.Reversed = True

# Sketch on an angled plane
sketch10 = body.newObject("Sketcher::SketchObject", "Sketch009")
sketch10.Placement = App.Placement(V(-36.697952, 13.438926, 14.928298), App.Rotation(V(0.297556263, 0.947000003, -0.121042408), V(0.376804999, 0, 0.926292607), V(0.877199102, -0.321233551, -0.356834335), "ZXY"))
sketch10.addGeometry(Part.LineSegment(V(-97.4, 4.7, 0), V(-88.8, 15.7, 0)), False)
sketch10.addGeometry(Part.LineSegment(V(-88.8, 15.7, 0), V(-96.9, 17.9, 0)), False)
sketch10.addGeometry(Part.ArcOfCircle(Part.Circle(V(-98, 14.1, 0), V(0, 0, 1), 4), math.radians(75), math.radians(209)), False)
sketch10.addGeometry(Part.LineSegment(V(-101.5, 12.1, 0), V(-97.4, 4.7, 0)), False)
sketch10.addGeometry(Part.Circle(V(-98, 14.1, 0), V(0, 0, 1), 1.6), False)
sketch10.addConstraint(Sketcher.Constraint("Coincident", 0, 2, 1, 1))
sketch10.addConstraint(Sketcher.Constraint("Tangent", 1, 2, 2, 1))
sketch10.addConstraint(Sketcher.Constraint("Tangent", 2, 2, 3, 1))
sketch10.addConstraint(Sketcher.Constraint("Coincident", 3, 2, 0, 1))
sketch10.addConstraint(Sketcher.Constraint("Coincident", 4, 3, 2, 3))
sketch10.addConstraint(Sketcher.Constraint("Equal", 1, 3))
sketch10.addConstraint(Sketcher.Constraint("Radius", 2, Q("4 mm")))
sketch10.addConstraint(Sketcher.Constraint("Diameter", 4, Q("3.2 mm")))
sketch10.addConstraint(Sketcher.Constraint("Distance", 0, Q("14 mm")))
sketch10.addConstraint(Sketcher.Constraint("DistanceY", 2, 3, 0, 2, Q("1.651202 mm")))
sketch10.addConstraint(Sketcher.Constraint("Distance", 1, Q("8.452219 mm")))
sketch10.addConstraint(Sketcher.Constraint("DistanceX", 0, 2, -1, 1, Q("88.755019 mm")))
sketch10.addConstraint(Sketcher.Constraint("DistanceY", -1, 1, 1, 2, Q("17.92029 mm")))
sketch10.setExpression("Constraints[6]", "Params.sketch10_radius")
sketch10.setExpression("Constraints[7]", "Params.sketch10_diameter")
sketch10.setExpression("Constraints[8]", "Params.sketch10_length")
pad3 = body.newObject("PartDesign::Pad", "Pad002")
pad3.Profile = sketch10
pad3.setExpression("Length", "Params.pad3_length")
pad3.Reversed = True

# Sketch on an angled plane
sketch11 = body.newObject("Sketcher::SketchObject", "Sketch010")
sketch11.Placement = App.Placement(V(-36.697952, 13.438926, 14.928298), App.Rotation(V(0.297556263, 0.947000003, -0.121042408), V(0.376804999, 0, 0.926292607), V(0.877199102, -0.321233551, -0.356834335), "ZXY"))
sketch11.addGeometry(Part.LineSegment(V(-97.4, 4.7, 0), V(-88.8, 15.7, 0)), False)
sketch11.addGeometry(Part.LineSegment(V(-88.8, 15.7, 0), V(-96.9, 17.9, 0)), False)
sketch11.addGeometry(Part.ArcOfCircle(Part.Circle(V(-98, 14.1, 0), V(0, 0, 1), 4), math.radians(75), math.radians(209)), False)
sketch11.addGeometry(Part.LineSegment(V(-101.5, 12.1, 0), V(-97.4, 4.7, 0)), False)
sketch11.addGeometry(Part.Circle(V(-98, 14.1, 0), V(0, 0, 1), 1.6), False)
sketch11.addConstraint(Sketcher.Constraint("Coincident", 0, 2, 1, 1))
sketch11.addConstraint(Sketcher.Constraint("Tangent", 1, 2, 2, 1))
sketch11.addConstraint(Sketcher.Constraint("Tangent", 2, 2, 3, 1))
sketch11.addConstraint(Sketcher.Constraint("Coincident", 3, 2, 0, 1))
sketch11.addConstraint(Sketcher.Constraint("Coincident", 4, 3, 2, 3))
sketch11.addConstraint(Sketcher.Constraint("Equal", 1, 3))
sketch11.addConstraint(Sketcher.Constraint("Radius", 2, Q("4 mm")))
sketch11.addConstraint(Sketcher.Constraint("Diameter", 4, Q("3.2 mm")))
sketch11.addConstraint(Sketcher.Constraint("Distance", 0, Q("14 mm")))
sketch11.addConstraint(Sketcher.Constraint("DistanceY", 2, 3, 0, 2, Q("1.651202 mm")))
sketch11.addConstraint(Sketcher.Constraint("Distance", 1, Q("8.452219 mm")))
sketch11.addConstraint(Sketcher.Constraint("DistanceX", 0, 2, -1, 1, Q("88.755019 mm")))
sketch11.addConstraint(Sketcher.Constraint("DistanceY", -1, 1, 1, 2, Q("17.92029 mm")))
sketch11.setExpression("Constraints[6]", "Params.sketch11_radius")
sketch11.setExpression("Constraints[7]", "Params.sketch11_diameter")
sketch11.setExpression("Constraints[8]", "Params.sketch11_length")
pocket8 = body.newObject("PartDesign::Pocket", "Pocket007")
pocket8.Profile = sketch11
pocket8.setExpression("Length", "Params.pocket8_length")
doc.recompute()

mirrored2 = body.newObject("PartDesign::Mirrored", "Mirrored001")
mirrored2.Originals = [pad3]
mirrored2.MirrorPlane = (doc.getObject("YZ_Plane"), [""])
body.Tip = mirrored2
doc.recompute()

mirrored3 = body.newObject("PartDesign::Mirrored", "Mirrored002")
mirrored3.Originals = [pocket8]
mirrored3.MirrorPlane = (doc.getObject("YZ_Plane"), [""])
body.Tip = mirrored3

doc.recompute()
